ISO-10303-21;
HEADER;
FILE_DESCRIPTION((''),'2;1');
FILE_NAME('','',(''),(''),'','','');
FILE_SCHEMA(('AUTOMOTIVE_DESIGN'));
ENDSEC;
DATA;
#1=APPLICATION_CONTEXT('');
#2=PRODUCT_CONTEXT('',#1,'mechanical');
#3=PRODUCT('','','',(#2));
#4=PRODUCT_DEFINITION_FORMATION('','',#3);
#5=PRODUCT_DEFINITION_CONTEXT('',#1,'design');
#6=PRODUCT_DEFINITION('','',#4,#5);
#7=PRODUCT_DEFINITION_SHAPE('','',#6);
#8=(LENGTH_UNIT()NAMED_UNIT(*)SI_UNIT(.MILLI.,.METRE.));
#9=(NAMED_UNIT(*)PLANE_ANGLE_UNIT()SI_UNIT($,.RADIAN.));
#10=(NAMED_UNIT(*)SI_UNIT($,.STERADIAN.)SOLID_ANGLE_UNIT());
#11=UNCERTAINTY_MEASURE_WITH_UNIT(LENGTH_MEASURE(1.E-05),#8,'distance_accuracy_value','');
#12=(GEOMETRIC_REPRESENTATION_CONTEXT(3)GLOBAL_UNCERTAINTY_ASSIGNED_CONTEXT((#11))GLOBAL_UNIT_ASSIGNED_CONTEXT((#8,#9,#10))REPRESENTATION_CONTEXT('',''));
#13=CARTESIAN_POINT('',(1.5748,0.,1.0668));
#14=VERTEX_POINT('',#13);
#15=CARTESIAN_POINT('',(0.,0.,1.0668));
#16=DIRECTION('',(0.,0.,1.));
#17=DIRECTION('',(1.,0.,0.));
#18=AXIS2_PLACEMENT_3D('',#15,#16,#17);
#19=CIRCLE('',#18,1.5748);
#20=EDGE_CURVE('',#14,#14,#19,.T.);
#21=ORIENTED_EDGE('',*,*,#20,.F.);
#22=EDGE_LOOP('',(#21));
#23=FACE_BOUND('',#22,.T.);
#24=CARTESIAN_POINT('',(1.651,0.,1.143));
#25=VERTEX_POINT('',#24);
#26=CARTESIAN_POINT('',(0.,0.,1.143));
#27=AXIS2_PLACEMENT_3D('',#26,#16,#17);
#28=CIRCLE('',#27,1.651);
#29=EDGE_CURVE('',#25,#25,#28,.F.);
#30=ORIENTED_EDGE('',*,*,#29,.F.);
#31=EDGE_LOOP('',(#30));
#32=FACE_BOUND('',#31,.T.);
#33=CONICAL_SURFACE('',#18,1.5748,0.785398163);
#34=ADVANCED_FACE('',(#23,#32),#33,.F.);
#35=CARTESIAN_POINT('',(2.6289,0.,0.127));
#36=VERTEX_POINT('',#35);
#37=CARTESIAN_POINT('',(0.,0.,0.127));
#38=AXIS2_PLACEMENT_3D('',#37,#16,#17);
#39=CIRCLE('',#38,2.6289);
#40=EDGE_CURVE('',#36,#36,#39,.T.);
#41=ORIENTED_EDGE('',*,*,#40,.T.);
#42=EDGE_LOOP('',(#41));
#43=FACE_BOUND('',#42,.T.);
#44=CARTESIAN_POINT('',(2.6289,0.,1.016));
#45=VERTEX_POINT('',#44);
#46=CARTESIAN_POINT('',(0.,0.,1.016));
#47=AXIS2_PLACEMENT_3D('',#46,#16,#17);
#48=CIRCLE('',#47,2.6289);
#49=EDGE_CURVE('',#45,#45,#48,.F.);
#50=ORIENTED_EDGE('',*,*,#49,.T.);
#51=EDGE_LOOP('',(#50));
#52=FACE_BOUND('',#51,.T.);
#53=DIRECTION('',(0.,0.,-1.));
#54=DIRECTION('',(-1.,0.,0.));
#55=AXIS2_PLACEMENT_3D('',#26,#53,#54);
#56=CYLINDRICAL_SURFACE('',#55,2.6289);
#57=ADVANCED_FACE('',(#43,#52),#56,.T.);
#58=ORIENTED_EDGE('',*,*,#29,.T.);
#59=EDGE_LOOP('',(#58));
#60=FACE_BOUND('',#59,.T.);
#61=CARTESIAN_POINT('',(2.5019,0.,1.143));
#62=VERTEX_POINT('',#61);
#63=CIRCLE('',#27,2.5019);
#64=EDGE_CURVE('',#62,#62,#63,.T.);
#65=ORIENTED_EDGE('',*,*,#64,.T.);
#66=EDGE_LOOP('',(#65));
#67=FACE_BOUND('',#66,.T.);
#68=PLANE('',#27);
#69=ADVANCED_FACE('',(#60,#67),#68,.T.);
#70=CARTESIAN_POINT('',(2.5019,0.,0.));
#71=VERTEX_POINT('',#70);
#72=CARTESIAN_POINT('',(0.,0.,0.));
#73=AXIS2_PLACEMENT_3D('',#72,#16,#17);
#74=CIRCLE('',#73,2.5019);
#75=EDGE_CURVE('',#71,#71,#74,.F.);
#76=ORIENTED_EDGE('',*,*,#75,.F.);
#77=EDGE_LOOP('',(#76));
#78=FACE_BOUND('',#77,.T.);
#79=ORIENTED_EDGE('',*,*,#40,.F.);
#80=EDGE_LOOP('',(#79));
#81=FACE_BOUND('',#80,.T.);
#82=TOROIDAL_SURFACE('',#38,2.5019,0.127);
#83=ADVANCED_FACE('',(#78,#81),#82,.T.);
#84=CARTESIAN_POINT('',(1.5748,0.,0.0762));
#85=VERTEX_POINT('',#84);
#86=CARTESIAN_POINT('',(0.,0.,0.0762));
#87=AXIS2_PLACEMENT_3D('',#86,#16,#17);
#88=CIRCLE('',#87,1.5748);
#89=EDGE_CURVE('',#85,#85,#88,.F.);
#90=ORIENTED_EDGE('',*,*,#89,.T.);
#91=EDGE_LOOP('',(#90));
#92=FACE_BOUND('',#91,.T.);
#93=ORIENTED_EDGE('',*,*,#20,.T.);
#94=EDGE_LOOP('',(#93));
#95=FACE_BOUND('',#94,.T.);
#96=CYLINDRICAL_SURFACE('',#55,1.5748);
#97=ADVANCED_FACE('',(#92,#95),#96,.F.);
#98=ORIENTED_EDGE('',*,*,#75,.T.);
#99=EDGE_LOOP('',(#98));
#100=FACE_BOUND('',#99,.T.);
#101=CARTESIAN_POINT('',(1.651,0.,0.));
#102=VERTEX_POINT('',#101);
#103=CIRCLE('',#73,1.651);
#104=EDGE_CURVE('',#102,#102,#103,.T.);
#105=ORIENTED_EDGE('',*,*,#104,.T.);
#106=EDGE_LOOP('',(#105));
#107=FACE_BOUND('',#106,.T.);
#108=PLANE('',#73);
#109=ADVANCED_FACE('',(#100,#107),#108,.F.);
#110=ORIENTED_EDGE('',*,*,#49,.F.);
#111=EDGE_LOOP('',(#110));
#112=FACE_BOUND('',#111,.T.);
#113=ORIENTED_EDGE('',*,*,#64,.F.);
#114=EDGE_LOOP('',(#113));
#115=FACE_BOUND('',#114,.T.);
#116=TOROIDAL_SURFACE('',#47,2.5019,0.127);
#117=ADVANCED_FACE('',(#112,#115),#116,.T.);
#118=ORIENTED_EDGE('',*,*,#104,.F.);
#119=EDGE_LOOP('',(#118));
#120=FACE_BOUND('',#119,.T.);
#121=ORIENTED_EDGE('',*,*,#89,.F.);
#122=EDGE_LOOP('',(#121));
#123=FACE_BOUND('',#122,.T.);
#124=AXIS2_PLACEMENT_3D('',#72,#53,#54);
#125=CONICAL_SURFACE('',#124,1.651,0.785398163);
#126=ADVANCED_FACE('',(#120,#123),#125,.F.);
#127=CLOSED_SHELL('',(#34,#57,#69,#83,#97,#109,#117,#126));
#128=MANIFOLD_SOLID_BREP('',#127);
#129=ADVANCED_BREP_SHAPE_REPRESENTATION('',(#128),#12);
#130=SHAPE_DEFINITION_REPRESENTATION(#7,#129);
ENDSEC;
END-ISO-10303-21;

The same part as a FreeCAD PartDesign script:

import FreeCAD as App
import Part
import Sketcher
from FreeCAD import Vector
Q = App.Units.Quantity


def edges_at(feature, points):
    """Names of the edges that pass closest to the given points."""
    edges = feature.Shape.Edges
    near = lambda p: min(range(len(edges)), key=lambda i: edges[i].distToShape(Part.Vertex(*p))[0])
    return sorted({f"Edge{near(p) + 1}" for p in points})

doc = App.newDocument("Part")
params = doc.addObject("Spreadsheet::Sheet", "Params")
for row, (alias, value) in enumerate([
    ("sketch1_diameter", "0.207 in"),
    ("sketch1_diameter2", "0.124 in"),
    ("pad1_length", "0.045 in"),
    ("fillet_radius", "0.005 in"),
    ("chamfer_size", "0.003 in"),
], start=1):
    params.set(f"A{row}", alias)
    params.set(f"B{row}", "=" + value)
    params.setAlias(f"B{row}", alias)

body = doc.addObject("PartDesign::Body", "Body")

sketch1 = doc.addObject("Sketcher::SketchObject", "Sketch")
body.addObject(sketch1)
sketch1.AttachmentSupport = (doc.XY_Plane, [""])
sketch1.MapMode = "FlatFace"
sketch1.addGeometry([
    Part.Circle(Vector(0, 0, 0), Vector(0, 0, 1), 2.6),
    Part.Circle(Vector(0, 0, 0), Vector(0, 0, 1), 1.6),
], False)
sketch1.addConstraint([
    Sketcher.Constraint("Coincident", 0, 3, -1, 1),
    Sketcher.Constraint("Coincident", 1, 3, -1, 1),
    Sketcher.Constraint("Diameter", 0, Q("0.207 in")),
    Sketcher.Constraint("Diameter", 1, Q("0.124 in")),
])
sketch1.setExpression("Constraints[2]", "Params.sketch1_diameter")
sketch1.setExpression("Constraints[3]", "Params.sketch1_diameter2")
pad1 = doc.addObject("PartDesign::Pad", "Pad")
body.addObject(pad1)
pad1.Profile = sketch1
pad1.setExpression("Length", "Params.pad1_length")
doc.recompute()

fillet = doc.addObject("PartDesign::Fillet", "Fillet")
body.addObject(fillet)
fillet.Base = (pad1, edges_at(pad1, [(-2.629, 0, 0), (-2.629, 0, 1.143)]))
fillet.setExpression("Radius", "Params.fillet_radius")
doc.recompute()

chamfer = doc.addObject("PartDesign::Chamfer", "Chamfer")
body.addObject(chamfer)
chamfer.Base = (fillet, edges_at(fillet, [(-1.575, 0, 0), (-1.575, 0, 1.143)]))
chamfer.setExpression("Size", "Params.chamfer_size")

doc.recompute()
